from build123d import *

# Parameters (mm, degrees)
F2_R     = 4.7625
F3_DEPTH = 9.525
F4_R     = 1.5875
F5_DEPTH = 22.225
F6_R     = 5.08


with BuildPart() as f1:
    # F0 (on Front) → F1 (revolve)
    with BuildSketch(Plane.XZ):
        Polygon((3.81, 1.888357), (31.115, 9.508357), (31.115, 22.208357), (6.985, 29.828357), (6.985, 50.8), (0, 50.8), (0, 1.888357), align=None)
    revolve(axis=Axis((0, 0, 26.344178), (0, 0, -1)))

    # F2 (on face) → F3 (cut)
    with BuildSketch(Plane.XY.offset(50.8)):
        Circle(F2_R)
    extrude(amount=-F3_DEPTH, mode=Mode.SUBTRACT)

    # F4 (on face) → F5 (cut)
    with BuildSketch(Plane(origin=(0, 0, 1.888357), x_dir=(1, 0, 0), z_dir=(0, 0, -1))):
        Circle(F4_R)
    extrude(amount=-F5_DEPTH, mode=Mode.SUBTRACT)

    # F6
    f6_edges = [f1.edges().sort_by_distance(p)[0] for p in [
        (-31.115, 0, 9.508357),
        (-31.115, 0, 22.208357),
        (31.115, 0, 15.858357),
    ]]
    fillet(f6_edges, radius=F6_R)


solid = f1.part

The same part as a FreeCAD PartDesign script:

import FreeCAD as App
import Part
import Sketcher
from FreeCAD import Vector
Q = App.Units.Quantity


def edges_at(feature, points):
    """Names of the edges that pass closest to the given points."""
    edges = feature.Shape.Edges
    near = lambda p: min(range(len(edges)), key=lambda i: edges[i].distToShape(Part.Vertex(*p))[0])
    return sorted({f"Edge{near(p) + 1}" for p in points})


def add_polygon(sketch, points):
    """Adds a closed chain of lines whose ends are joined by coincident constraints."""
    first, n = sketch.GeometryCount, len(points)
    for a, b in zip(points, points[1:] + points[:1]):
        sketch.addGeometry(Part.LineSegment(App.Vector(*a, 0), App.Vector(*b, 0)), False)
    for i in range(n):
        sketch.addConstraint(Sketcher.Constraint("Coincident", first + i, 2, first + (i + 1) % n, 1))

doc = App.newDocument("Part")
body = doc.addObject("PartDesign::Body", "Body")

sketch1 = body.newObject("Sketcher::SketchObject", "Sketch")
sketch1.AttachmentSupport = (doc.getObject("XZ_Plane"), [""])
sketch1.MapMode = "FlatFace"
add_polygon(sketch1, [(3.8, 1.9), (31.1, 9.5), (31.1, 22.2), (7, 29.8), (7, 50.8), (0, 50.8), (0, 1.9)])
sketch1.addConstraint(Sketcher.Constraint("Vertical", 1))
sketch1.addConstraint(Sketcher.Constraint("Vertical", 3))
sketch1.addConstraint(Sketcher.Constraint("Horizontal", 4))
sketch1.addConstraint(Sketcher.Constraint("Vertical", 5))
sketch1.addConstraint(Sketcher.Constraint("Horizontal", 6))
sketch1.addConstraint(Sketcher.Constraint("PointOnObject", 4, 2, -2))
sketch1.addConstraint(Sketcher.Constraint("DistanceY", 1, 1, 1, 2, Q("0.5 in")))
sketch1.addConstraint(Sketcher.Constraint("DistanceY", -1, 1, 3, 2, Q("2 in")))
sketch1.addConstraint(Sketcher.Constraint("DistanceX", 6, 1, 6, 2, Q("0.15 in")))
sketch1.addConstraint(Sketcher.Constraint("DistanceY", 1, 2, 2, 2, Q("0.3 in")))
sketch1.addConstraint(Sketcher.Constraint("DistanceY", 5, 2, 2, 2, Q("1.1 in")))
sketch1.addConstraint(Sketcher.Constraint("DistanceX", 4, 2, 4, 1, Q("0.275 in")))
sketch1.addConstraint(Sketcher.Constraint("DistanceX", 2, 2, 1, 2, Q("0.95 in")))
sketch1.addConstraint(Sketcher.Constraint("DistanceY", 3, 1, 3, 2, 20.971643))
revolution = body.newObject("PartDesign::Revolution", "Revolution")
revolution.Profile = sketch1
revolution.ReferenceAxis = (sketch1, ["V_Axis"])
revolution.Angle = 360

sketch2 = body.newObject("Sketcher::SketchObject", "Sketch001")
sketch2.AttachmentSupport = (doc.getObject("XY_Plane"), [""])
sketch2.MapMode = "FlatFace"
sketch2.AttachmentOffset = App.Placement(Vector(0, 0, 2 * 25.4), App.Rotation())
sketch2.addGeometry(Part.Circle(Vector(0, 0, 0), Vector(0, 0, 1), 4.8), False)
sketch2.addConstraint(Sketcher.Constraint("Coincident", 0, 3, -1, 1))
sketch2.addConstraint(Sketcher.Constraint("Diameter", 0, Q("0.375 in")))
pocket1 = body.newObject("PartDesign::Pocket", "Pocket")
pocket1.Profile = sketch2
pocket1.Length = Q("0.375 in")

sketch3 = body.newObject("Sketcher::SketchObject", "Sketch002")
sketch3.AttachmentSupport = (doc.getObject("XY_Plane"), [""])
sketch3.MapMode = "FlatFace"
sketch3.AttachmentOffset = App.Placement(Vector(0, 0, 1.888357), App.Rotation())
sketch3.addGeometry(Part.Circle(Vector(0, 0, 0), Vector(0, 0, 1), 1.6), False)
sketch3.addConstraint(Sketcher.Constraint("Coincident", 0, 3, -1, 1))
sketch3.addConstraint(Sketcher.Constraint("Diameter", 0, Q("0.125 in")))
pocket2 = body.newObject("PartDesign::Pocket", "Pocket001")
pocket2.Profile = sketch3
pocket2.Length = Q("0.875 in")
pocket2.Reversed = True
doc.recompute()

fillet = body.newObject("PartDesign::Fillet", "Fillet")
fillet.Base = (pocket2, edges_at(pocket2, [(-31.115, 0, 9.508), (-31.115, 0, 22.208), (31.115, 0, 15.858)]))
fillet.Radius = Q("0.2 in")

doc.recompute()
